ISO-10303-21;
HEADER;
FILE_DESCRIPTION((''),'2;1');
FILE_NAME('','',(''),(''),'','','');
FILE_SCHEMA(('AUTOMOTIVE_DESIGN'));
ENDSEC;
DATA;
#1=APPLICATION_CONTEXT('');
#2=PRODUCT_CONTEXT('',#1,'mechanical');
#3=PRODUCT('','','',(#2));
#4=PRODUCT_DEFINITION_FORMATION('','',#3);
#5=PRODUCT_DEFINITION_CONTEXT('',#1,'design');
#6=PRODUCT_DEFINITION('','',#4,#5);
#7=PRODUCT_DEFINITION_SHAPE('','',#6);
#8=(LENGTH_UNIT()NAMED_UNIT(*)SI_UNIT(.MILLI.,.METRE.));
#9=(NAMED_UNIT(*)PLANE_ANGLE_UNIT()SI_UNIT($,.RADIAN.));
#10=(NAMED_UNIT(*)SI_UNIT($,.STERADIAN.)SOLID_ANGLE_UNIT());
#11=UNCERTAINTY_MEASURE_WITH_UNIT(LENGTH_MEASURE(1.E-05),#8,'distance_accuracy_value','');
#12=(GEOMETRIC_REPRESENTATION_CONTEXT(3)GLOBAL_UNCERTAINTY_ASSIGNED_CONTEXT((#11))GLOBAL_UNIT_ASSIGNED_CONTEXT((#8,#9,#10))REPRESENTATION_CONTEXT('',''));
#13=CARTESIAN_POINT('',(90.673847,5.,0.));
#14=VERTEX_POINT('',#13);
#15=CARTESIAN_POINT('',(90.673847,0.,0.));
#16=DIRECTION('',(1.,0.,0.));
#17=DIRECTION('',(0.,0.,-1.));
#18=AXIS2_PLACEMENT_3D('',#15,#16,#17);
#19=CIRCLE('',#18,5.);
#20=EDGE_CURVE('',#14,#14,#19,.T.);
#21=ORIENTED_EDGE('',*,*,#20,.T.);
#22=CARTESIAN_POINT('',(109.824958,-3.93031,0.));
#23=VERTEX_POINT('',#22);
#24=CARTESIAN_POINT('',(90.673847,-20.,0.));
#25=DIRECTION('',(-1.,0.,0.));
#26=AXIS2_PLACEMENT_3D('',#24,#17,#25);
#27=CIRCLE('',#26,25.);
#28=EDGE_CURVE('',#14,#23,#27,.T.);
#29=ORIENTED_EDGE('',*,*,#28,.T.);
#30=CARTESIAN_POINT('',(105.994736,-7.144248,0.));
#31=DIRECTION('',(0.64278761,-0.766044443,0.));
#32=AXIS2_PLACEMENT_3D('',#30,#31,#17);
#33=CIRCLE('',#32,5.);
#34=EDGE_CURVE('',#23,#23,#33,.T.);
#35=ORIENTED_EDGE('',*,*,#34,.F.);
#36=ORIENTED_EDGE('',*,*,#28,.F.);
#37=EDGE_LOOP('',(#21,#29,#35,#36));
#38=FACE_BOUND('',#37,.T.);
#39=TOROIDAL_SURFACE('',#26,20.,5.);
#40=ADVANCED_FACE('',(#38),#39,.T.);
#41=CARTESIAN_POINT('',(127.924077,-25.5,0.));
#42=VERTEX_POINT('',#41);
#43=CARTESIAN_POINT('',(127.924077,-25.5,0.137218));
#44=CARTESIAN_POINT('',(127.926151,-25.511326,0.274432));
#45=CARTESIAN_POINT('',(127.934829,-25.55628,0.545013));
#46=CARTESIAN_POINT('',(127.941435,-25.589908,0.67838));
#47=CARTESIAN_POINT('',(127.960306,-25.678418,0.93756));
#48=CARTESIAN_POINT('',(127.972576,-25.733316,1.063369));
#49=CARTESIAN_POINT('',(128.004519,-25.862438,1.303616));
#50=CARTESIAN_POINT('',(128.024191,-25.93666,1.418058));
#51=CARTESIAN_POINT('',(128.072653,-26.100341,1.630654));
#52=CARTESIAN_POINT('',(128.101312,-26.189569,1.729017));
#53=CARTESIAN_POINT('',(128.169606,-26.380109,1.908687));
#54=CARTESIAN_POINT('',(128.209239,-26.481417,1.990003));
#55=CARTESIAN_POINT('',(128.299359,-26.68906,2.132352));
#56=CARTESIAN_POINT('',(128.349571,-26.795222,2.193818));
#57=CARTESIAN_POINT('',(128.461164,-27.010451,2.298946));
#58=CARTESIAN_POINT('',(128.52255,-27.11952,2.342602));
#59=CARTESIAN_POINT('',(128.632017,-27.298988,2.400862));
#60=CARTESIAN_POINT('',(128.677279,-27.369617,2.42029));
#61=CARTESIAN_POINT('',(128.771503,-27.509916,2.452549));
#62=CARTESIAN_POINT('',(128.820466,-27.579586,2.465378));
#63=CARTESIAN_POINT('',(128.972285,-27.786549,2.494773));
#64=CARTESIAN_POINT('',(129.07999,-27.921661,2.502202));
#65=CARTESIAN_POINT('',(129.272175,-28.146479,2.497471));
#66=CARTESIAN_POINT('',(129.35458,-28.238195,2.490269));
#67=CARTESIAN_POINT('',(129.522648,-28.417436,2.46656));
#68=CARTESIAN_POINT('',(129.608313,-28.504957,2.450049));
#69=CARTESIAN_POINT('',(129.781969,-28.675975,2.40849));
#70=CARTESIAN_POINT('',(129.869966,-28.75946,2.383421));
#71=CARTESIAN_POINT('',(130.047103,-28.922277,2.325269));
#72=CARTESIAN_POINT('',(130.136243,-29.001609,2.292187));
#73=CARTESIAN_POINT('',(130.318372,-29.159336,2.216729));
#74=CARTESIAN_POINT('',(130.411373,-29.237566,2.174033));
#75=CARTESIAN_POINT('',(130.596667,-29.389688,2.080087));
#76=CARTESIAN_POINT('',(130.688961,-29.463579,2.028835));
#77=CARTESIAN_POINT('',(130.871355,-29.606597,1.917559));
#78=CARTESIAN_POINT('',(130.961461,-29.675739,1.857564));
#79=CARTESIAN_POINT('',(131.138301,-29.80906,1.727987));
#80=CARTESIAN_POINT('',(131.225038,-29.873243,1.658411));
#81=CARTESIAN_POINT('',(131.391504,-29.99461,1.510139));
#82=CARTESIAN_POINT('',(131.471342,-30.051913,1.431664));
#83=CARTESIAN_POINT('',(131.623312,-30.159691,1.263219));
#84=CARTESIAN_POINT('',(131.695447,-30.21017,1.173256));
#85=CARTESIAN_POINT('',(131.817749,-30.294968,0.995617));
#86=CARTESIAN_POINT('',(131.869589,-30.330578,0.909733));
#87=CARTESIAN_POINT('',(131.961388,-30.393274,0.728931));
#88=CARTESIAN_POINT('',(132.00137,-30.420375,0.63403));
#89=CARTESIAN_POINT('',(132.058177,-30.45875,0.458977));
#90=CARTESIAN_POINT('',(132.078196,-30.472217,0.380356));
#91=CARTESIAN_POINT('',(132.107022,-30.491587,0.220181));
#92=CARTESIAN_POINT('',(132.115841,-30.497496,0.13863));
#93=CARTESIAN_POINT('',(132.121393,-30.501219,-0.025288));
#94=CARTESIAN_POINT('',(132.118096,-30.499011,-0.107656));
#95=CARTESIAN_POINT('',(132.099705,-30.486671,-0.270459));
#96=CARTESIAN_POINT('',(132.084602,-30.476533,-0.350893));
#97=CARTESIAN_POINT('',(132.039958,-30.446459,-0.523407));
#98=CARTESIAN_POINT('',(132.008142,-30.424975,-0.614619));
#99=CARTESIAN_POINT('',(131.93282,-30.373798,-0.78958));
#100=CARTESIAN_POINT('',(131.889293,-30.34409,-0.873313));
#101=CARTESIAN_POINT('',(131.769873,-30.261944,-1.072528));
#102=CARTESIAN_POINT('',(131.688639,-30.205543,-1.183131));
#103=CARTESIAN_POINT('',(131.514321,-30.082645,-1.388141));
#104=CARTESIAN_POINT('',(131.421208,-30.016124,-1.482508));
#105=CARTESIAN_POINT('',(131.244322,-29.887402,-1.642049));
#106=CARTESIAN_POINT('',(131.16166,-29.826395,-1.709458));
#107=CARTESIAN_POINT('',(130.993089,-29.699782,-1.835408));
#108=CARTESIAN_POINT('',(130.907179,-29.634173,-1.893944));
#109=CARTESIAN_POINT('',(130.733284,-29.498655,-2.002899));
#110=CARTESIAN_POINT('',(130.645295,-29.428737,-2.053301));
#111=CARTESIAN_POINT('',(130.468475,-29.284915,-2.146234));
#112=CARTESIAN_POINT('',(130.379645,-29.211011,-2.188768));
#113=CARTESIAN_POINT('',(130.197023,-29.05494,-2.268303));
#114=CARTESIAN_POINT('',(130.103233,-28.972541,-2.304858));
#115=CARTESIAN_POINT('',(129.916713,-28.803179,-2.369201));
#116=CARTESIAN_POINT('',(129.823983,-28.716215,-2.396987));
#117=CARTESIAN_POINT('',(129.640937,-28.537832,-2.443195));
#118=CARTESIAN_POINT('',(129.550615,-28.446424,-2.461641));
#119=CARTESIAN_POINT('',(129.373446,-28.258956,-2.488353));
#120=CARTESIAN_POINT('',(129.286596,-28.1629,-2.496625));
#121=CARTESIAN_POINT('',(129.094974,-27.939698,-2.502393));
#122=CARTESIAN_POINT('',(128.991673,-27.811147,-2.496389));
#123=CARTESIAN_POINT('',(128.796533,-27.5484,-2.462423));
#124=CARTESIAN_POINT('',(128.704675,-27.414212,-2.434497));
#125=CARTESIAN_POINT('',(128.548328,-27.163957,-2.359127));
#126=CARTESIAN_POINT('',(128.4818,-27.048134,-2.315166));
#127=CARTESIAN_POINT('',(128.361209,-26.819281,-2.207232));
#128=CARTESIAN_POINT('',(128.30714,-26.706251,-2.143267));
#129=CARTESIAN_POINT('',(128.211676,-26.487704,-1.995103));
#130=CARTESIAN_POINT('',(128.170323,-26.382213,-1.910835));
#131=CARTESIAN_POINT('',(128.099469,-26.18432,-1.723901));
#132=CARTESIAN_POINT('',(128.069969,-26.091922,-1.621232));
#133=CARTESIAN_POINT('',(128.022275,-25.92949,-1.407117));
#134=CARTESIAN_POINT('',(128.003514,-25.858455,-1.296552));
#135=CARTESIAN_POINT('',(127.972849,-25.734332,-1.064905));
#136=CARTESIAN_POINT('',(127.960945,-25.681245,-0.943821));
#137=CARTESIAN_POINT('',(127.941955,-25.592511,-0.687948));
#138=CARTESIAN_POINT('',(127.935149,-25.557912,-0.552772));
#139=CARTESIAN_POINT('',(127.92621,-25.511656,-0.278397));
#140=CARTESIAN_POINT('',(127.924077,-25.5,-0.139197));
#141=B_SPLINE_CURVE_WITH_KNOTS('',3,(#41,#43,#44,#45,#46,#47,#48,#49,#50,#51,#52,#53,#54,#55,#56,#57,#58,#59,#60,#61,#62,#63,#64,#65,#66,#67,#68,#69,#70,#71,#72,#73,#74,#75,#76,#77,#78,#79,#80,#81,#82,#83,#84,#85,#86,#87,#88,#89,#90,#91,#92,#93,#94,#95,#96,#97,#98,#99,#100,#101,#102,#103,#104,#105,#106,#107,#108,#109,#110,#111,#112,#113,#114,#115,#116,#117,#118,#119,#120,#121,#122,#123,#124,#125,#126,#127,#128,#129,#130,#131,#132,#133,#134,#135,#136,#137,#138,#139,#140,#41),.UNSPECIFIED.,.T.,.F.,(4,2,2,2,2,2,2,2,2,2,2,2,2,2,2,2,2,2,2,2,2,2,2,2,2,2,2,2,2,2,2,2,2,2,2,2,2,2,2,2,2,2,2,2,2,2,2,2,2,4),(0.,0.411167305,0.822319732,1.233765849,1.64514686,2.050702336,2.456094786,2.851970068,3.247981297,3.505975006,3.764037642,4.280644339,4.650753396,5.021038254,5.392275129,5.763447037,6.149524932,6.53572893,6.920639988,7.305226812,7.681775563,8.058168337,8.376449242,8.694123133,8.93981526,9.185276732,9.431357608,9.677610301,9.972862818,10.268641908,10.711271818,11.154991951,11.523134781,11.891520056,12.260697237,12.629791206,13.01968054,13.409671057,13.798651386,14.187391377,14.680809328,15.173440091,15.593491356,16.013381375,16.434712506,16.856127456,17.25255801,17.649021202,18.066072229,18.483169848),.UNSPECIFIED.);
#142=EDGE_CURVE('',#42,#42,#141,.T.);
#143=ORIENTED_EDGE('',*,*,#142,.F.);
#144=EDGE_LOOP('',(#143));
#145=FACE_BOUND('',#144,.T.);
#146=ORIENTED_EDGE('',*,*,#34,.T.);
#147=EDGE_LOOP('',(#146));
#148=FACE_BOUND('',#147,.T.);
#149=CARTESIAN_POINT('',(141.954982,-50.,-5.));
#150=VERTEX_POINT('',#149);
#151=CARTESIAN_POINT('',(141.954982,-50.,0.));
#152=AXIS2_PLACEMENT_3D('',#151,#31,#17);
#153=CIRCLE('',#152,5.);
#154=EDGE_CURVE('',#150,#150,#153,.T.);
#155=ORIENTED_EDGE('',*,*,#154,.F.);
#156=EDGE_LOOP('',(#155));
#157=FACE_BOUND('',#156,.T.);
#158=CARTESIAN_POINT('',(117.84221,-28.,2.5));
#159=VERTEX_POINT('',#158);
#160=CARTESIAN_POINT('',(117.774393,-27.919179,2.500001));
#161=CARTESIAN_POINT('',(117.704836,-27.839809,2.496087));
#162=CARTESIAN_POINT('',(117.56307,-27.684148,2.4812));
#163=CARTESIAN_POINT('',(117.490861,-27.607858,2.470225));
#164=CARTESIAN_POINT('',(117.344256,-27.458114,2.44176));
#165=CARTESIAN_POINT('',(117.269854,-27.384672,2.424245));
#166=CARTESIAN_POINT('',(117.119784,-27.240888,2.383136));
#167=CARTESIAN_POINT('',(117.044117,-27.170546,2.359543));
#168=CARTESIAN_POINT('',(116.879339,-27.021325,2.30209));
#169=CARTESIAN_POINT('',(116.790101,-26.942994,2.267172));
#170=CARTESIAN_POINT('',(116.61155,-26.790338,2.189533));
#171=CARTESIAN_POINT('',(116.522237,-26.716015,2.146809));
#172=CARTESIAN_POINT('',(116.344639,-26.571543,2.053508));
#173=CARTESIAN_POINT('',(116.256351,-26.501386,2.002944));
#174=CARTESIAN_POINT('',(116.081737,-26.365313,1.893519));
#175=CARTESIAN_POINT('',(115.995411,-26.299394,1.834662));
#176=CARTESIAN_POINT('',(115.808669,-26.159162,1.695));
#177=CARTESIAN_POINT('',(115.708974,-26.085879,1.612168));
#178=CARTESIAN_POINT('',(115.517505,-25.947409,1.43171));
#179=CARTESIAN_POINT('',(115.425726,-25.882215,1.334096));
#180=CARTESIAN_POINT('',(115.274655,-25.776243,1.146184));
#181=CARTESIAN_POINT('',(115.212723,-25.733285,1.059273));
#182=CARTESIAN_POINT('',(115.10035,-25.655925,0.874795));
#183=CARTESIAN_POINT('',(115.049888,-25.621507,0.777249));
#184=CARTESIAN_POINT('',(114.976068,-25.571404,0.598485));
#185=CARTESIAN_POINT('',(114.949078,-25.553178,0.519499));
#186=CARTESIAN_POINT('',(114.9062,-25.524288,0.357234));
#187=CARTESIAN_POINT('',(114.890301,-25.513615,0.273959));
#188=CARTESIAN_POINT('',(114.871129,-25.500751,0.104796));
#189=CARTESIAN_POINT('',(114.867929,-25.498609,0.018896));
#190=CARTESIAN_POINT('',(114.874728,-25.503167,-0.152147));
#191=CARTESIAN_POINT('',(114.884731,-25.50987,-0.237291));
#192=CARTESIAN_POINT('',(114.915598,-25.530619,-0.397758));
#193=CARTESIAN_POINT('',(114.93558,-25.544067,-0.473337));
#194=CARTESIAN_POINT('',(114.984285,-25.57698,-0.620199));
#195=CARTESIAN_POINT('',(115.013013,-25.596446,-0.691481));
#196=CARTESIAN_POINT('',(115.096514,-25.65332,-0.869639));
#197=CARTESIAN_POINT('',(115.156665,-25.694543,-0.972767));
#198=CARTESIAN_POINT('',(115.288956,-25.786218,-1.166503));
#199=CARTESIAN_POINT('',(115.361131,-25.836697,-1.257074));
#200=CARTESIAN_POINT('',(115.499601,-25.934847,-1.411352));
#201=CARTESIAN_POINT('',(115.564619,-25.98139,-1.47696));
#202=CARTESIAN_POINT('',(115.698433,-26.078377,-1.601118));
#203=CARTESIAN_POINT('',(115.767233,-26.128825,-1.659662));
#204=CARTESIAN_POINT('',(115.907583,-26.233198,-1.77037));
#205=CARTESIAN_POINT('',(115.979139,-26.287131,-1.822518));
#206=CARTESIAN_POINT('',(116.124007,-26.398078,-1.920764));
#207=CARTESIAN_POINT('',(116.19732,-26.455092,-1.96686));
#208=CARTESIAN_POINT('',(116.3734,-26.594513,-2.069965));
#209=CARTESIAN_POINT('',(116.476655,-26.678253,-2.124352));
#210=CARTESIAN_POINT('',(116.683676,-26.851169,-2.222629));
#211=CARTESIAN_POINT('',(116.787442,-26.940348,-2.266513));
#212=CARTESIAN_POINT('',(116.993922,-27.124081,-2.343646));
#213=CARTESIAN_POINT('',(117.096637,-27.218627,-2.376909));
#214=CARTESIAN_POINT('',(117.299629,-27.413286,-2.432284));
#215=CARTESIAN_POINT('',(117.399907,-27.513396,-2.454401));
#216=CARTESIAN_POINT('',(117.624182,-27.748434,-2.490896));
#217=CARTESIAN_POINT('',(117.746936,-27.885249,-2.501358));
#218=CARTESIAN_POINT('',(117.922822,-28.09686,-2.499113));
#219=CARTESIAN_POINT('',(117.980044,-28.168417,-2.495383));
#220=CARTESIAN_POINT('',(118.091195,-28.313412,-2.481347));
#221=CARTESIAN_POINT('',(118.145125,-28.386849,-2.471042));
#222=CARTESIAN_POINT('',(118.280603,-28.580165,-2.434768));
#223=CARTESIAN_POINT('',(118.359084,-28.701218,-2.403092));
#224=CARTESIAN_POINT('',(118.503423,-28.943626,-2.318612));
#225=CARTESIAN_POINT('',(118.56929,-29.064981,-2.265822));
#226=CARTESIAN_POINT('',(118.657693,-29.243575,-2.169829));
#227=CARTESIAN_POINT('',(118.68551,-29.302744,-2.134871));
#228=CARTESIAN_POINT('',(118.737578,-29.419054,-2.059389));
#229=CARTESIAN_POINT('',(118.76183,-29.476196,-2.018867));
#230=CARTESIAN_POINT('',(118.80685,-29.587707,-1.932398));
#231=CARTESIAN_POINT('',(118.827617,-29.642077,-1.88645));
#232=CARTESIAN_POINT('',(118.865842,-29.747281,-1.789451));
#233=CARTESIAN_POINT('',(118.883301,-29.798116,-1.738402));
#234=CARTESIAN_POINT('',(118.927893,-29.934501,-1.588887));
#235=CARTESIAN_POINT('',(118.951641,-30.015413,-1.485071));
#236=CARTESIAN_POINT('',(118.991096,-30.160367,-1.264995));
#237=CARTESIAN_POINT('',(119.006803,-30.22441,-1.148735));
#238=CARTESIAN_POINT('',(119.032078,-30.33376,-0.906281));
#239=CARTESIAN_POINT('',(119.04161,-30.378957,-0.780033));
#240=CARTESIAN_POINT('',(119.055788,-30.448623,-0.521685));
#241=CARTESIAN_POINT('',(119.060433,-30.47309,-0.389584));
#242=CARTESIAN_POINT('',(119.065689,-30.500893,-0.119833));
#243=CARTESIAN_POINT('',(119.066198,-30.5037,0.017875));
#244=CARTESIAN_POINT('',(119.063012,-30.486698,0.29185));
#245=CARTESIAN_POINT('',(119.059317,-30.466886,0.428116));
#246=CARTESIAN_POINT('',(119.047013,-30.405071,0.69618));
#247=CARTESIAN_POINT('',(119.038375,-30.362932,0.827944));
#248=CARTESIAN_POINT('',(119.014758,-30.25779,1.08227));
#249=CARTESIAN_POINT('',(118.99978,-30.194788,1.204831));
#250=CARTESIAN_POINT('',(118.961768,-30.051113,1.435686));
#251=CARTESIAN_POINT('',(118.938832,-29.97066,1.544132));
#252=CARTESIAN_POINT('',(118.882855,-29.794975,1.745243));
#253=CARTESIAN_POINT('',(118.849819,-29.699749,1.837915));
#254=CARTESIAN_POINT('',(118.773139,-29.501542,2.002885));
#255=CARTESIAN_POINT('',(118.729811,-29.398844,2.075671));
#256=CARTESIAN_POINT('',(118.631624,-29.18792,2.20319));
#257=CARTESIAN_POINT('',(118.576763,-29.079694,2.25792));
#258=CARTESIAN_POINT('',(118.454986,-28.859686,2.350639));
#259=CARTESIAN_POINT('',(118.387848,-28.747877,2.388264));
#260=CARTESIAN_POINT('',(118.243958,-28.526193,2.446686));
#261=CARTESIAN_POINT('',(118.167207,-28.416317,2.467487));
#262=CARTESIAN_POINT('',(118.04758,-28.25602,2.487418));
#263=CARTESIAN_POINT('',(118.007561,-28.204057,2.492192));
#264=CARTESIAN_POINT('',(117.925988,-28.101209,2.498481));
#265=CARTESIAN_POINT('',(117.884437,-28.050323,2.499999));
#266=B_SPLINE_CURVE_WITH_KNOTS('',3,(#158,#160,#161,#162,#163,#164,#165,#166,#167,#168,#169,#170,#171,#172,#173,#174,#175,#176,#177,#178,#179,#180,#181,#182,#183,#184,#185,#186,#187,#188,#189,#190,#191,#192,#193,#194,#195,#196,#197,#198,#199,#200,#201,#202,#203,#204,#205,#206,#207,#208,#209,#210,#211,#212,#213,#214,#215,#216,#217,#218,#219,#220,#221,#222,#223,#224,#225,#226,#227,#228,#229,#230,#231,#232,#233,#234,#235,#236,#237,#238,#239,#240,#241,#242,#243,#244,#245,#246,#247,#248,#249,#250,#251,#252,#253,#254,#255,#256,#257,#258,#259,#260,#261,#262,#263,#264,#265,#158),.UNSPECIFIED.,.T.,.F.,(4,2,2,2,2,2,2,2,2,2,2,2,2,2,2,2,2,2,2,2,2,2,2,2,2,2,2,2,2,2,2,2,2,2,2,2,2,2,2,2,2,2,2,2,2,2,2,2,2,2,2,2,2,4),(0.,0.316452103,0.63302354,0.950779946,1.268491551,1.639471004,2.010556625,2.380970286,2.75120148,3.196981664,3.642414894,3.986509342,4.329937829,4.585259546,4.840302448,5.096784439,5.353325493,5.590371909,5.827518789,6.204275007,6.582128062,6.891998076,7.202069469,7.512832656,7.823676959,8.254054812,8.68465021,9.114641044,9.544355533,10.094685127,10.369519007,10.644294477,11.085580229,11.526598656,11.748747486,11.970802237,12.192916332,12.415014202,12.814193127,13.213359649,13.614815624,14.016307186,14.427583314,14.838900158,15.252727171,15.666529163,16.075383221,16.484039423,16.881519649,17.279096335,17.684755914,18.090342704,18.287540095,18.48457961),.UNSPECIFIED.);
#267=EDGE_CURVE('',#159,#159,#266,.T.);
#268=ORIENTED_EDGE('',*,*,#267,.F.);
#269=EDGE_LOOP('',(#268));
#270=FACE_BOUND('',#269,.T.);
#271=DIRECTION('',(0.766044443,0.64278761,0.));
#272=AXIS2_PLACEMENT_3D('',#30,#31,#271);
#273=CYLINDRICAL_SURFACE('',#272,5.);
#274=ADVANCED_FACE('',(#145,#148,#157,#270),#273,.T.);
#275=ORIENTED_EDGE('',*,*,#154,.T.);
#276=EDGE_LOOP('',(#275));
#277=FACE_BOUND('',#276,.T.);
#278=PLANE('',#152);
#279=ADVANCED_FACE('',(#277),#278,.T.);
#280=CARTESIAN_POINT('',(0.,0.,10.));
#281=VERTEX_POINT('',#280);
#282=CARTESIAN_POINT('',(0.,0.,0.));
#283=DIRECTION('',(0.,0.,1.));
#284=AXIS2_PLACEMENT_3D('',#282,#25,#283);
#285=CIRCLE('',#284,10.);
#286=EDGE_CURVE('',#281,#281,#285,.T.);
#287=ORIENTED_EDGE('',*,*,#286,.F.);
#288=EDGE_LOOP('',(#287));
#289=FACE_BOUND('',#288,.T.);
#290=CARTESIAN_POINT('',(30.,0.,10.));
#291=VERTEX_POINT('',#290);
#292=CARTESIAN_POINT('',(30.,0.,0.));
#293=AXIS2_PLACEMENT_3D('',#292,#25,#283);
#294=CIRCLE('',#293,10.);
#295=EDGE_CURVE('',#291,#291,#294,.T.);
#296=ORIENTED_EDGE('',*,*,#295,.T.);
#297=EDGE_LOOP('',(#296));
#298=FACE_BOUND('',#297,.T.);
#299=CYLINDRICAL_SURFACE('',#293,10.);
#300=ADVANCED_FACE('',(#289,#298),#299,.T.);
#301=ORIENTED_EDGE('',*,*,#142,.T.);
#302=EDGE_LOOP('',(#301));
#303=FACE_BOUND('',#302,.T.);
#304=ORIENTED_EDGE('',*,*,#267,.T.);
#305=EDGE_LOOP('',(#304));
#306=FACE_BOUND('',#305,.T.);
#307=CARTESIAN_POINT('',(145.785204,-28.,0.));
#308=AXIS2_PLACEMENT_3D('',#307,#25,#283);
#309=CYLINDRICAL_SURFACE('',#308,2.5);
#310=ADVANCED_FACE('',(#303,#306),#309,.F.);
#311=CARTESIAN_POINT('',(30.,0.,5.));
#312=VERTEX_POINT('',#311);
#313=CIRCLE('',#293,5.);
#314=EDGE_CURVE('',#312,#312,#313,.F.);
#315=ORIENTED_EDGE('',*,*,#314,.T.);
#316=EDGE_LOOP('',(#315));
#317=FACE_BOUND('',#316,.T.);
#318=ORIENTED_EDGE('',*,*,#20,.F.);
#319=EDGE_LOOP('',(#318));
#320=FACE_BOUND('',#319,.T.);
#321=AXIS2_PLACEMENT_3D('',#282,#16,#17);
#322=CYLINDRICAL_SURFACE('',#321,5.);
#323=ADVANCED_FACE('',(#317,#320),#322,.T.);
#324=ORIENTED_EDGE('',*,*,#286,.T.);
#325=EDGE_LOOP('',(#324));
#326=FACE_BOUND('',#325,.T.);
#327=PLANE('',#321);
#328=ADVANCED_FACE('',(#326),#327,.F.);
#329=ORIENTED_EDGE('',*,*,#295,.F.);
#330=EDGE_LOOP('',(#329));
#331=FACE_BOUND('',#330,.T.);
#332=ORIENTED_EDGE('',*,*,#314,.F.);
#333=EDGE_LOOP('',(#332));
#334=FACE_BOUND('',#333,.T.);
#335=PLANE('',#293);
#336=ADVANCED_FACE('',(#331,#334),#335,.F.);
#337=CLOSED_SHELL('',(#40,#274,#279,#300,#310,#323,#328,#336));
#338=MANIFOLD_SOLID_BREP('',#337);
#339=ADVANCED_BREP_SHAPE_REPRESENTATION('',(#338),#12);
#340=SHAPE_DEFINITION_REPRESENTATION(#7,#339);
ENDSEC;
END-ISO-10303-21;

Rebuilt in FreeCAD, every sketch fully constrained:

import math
import FreeCAD as App
import Part
import Sketcher

V = App.Vector
Q = App.Units.Quantity

doc = App.newDocument("Part")
body = doc.addObject("PartDesign::Body", "Body")

# Sketch on YZ plane
sketch1 = body.newObject("Sketcher::SketchObject", "Sketch")
sketch1.AttachmentSupport = (doc.getObject("YZ_Plane"), [""])
sketch1.MapMode = "FlatFace"
sketch1.addGeometry(Part.Circle(V(0, 0, 0), V(0, 0, 1), 5), False)
sketch1.addConstraint([
    Sketcher.Constraint("Coincident", 0, 3, -1, 1),
    Sketcher.Constraint("Diameter", 0, 10.0),
])

# Sketch on XY plane
sketch2 = body.newObject("Sketcher::SketchObject", "Sketch001")
sketch2.AttachmentSupport = (doc.getObject("XY_Plane"), [""])
sketch2.MapMode = "FlatFace"
sketch2.addGeometry([
    Part.LineSegment(V(0, 0, 0), V(91, 0, 0)),
    Part.ArcOfCircle(Part.Circle(V(91, -20, 0), V(0, 0, 1), 20), math.radians(40), math.radians(90)),
    Part.LineSegment(V(106, -7, 0), V(142, -50, 0)),
], False)
sketch2.addConstraint([
    Sketcher.Constraint("Tangent", 0, 2, 1, 2),
    Sketcher.Constraint("Tangent", 1, 1, 2, 1),
    Sketcher.Constraint("Horizontal", 0),
    Sketcher.Constraint("Coincident", 0, 1, -1, 1),
    Sketcher.Constraint("Radius", 1, 20.0),
    Sketcher.Constraint("Angle", 2, Q("-50 deg")),
    Sketcher.Constraint("DistanceY", 2, 2, -1, 1, 50.0),
    Sketcher.Constraint("DistanceX", 0, 1, 0, 2, 90.673847),
])
doc.recompute()

additivepipe = body.newObject("PartDesign::AdditivePipe", "AdditivePipe")
additivepipe.Profile = sketch1
additivepipe.Spine = (sketch2, ["Edge1", "Edge2", "Edge3"])

# Sketch on YZ plane
sketch3 = body.newObject("Sketcher::SketchObject", "Sketch002")
sketch3.AttachmentSupport = (doc.getObject("YZ_Plane"), [""])
sketch3.MapMode = "FlatFace"
sketch3.addGeometry(Part.Circle(V(0, 0, 0), V(0, 0, 1), 10), False)
sketch3.addConstraint([
    Sketcher.Constraint("Coincident", 0, 3, -1, 1),
    Sketcher.Constraint("Diameter", 0, 20.0),
])
pad1 = body.newObject("PartDesign::Pad", "Pad")
pad1.Profile = sketch3
pad1.Length = 30

# Sketch on YZ plane
sketch4 = body.newObject("Sketcher::SketchObject", "Sketch003")
sketch4.AttachmentSupport = (doc.getObject("YZ_Plane"), [""])
sketch4.MapMode = "FlatFace"
sketch4.addGeometry(Part.Circle(V(-28, 0, 0), V(0, 0, 1), 2.5), False)
sketch4.addConstraint([
    Sketcher.Constraint("PointOnObject", 0, 3, -1),
    Sketcher.Constraint("Diameter", 0, 5.0),
    Sketcher.Constraint("DistanceX", 0, 3, -1, 1, 28.0),
])
pocket1 = body.newObject("PartDesign::Pocket", "Pocket")
pocket1.Profile = sketch4
pocket1.Type = "ThroughAll"
pocket1.Reversed = True

doc.recompute()
